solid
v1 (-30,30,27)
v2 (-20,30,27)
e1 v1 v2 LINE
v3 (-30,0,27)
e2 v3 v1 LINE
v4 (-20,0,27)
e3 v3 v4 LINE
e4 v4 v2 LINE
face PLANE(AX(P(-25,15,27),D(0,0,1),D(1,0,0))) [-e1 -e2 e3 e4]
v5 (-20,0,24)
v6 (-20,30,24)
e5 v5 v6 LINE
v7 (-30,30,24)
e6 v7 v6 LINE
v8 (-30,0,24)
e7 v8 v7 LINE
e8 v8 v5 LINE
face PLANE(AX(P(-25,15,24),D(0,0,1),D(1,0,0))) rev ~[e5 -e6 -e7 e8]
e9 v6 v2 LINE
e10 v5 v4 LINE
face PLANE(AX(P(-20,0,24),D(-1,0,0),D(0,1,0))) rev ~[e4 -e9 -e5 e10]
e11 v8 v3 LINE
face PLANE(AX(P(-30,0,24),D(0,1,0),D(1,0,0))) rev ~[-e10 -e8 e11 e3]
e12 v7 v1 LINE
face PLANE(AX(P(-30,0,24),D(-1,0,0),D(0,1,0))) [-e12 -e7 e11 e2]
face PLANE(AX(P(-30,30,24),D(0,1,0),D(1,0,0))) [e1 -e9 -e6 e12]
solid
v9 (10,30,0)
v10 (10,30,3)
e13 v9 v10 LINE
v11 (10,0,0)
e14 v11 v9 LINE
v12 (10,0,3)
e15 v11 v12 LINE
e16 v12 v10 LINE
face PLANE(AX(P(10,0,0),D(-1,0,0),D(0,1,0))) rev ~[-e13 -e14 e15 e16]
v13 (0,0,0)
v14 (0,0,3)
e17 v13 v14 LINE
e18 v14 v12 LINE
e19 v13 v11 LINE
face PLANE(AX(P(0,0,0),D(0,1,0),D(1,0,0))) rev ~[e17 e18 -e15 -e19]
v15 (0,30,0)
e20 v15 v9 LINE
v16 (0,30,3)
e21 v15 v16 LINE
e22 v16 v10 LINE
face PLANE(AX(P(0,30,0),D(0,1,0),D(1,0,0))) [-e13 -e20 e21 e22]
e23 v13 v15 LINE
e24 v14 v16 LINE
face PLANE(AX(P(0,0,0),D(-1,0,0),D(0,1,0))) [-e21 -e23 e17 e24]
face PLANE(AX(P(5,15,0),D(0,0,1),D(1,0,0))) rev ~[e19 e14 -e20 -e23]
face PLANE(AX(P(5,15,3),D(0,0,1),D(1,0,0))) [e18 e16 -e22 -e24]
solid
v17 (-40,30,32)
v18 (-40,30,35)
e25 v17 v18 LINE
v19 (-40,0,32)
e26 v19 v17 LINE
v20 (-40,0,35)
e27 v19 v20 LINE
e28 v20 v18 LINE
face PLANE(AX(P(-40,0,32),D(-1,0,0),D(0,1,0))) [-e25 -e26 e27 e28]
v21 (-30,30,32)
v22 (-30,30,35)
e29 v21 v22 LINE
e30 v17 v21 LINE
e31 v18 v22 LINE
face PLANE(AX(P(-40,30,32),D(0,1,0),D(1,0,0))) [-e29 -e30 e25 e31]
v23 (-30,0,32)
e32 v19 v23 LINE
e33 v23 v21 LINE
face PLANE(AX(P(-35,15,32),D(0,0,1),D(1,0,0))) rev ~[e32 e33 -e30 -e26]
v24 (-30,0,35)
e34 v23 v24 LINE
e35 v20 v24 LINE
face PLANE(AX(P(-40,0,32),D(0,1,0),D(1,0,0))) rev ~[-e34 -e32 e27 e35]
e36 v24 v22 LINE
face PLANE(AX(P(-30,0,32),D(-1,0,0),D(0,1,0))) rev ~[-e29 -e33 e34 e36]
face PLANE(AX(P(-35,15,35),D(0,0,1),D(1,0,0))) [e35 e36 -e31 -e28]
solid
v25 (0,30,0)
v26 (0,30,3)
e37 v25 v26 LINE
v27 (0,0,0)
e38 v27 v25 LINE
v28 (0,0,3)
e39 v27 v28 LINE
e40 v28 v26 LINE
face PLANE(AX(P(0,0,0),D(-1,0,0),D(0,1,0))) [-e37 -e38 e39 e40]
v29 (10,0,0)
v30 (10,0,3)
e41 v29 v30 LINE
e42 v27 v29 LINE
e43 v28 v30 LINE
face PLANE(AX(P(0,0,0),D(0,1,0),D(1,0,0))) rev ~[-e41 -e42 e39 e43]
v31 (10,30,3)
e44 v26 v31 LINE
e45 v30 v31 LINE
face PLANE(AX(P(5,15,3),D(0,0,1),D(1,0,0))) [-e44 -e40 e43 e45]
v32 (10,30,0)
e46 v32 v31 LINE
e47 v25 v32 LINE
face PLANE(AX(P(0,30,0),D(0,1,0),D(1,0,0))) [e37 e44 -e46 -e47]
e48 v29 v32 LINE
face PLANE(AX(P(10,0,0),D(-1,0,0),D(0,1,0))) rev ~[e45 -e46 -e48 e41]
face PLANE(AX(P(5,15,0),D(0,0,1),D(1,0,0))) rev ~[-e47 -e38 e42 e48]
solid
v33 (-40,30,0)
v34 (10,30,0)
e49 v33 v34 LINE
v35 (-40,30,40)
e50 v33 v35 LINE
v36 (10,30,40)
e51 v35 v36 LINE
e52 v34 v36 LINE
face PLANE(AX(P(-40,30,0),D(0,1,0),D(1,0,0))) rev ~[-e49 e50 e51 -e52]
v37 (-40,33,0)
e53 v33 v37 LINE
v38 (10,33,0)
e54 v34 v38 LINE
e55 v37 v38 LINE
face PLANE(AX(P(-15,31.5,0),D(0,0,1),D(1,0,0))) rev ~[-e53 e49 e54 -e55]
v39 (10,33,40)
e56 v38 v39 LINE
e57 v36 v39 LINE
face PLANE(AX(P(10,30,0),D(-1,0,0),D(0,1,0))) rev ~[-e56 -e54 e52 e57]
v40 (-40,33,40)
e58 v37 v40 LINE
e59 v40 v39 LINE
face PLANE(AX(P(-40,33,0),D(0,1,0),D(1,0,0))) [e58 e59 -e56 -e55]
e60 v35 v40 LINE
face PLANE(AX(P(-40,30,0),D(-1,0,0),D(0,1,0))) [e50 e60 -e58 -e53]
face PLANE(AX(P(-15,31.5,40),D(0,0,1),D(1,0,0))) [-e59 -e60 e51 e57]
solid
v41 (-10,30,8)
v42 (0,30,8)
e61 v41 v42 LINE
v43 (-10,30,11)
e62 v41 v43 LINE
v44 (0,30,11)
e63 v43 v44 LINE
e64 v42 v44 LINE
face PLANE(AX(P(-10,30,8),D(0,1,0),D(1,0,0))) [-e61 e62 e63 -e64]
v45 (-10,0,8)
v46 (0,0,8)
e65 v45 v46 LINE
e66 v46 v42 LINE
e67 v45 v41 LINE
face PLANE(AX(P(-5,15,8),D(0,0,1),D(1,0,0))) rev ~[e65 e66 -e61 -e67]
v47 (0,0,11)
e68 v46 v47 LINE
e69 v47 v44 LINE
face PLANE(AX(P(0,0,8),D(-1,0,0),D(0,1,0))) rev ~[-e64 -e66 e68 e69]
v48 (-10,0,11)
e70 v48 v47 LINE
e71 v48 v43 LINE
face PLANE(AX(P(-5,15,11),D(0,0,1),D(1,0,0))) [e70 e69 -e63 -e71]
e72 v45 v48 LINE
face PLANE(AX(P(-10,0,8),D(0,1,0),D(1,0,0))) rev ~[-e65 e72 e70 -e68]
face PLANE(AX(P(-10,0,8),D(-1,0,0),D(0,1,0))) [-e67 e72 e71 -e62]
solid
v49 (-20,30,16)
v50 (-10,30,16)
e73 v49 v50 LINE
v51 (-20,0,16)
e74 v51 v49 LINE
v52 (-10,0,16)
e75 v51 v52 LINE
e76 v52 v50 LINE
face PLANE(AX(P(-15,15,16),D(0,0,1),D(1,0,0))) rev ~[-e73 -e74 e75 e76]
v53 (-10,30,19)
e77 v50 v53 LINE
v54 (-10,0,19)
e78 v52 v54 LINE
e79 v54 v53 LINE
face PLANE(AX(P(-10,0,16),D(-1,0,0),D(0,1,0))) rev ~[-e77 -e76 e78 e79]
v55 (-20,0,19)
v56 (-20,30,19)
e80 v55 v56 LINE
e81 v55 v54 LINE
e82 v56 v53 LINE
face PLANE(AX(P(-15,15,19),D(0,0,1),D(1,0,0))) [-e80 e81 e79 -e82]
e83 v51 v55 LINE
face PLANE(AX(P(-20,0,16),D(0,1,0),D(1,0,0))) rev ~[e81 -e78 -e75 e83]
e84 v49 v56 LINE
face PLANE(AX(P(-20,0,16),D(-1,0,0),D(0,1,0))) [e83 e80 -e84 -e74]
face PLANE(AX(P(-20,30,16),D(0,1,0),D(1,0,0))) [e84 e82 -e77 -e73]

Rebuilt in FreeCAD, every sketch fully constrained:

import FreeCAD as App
import Part
import Sketcher

doc = App.newDocument("Part")
body = doc.addObject("PartDesign::Body", "Body")

# Sketch on XY plane
sketch1 = body.newObject("Sketcher::SketchObject", "Sketch")
sketch1.AttachmentSupport = (doc.getObject("XY_Plane"), [""])
sketch1.MapMode = "FlatFace"
sketch1.AttachmentOffset = App.Placement(App.Vector(0, 0, 24), App.Rotation())
sketch1.addGeometry(Part.LineSegment(App.Vector(-30, 30, 0), App.Vector(-30, 0, 0)), False)
sketch1.addGeometry(Part.LineSegment(App.Vector(-30, 0, 0), App.Vector(-20, 0, 0)), False)
sketch1.addGeometry(Part.LineSegment(App.Vector(-20, 0, 0), App.Vector(-20, 30, 0)), False)
sketch1.addGeometry(Part.LineSegment(App.Vector(-20, 30, 0), App.Vector(-30, 30, 0)), False)
sketch1.addConstraint(Sketcher.Constraint("Coincident", 0, 2, 1, 1))
sketch1.addConstraint(Sketcher.Constraint("Coincident", 1, 2, 2, 1))
sketch1.addConstraint(Sketcher.Constraint("Coincident", 2, 2, 3, 1))
sketch1.addConstraint(Sketcher.Constraint("Coincident", 3, 2, 0, 1))
sketch1.addConstraint(Sketcher.Constraint("Vertical", 0))
sketch1.addConstraint(Sketcher.Constraint("Horizontal", 1))
sketch1.addConstraint(Sketcher.Constraint("Vertical", 2))
sketch1.addConstraint(Sketcher.Constraint("Horizontal", 3))
sketch1.addConstraint(Sketcher.Constraint("PointOnObject", 0, 2, -1))
sketch1.addConstraint(Sketcher.Constraint("DistanceX", 1, 1, 1, 2, 10.0))
sketch1.addConstraint(Sketcher.Constraint("DistanceY", 0, 2, 0, 1, 30.0))
sketch1.addConstraint(Sketcher.Constraint("DistanceX", 0, 2, -1, 1, 30.0))
pad1 = body.newObject("PartDesign::Pad", "Pad")
pad1.Profile = sketch1
pad1.Length = 3
body2 = doc.addObject("PartDesign::Body", "Body001")

# Sketch on XY plane
sketch2 = body2.newObject("Sketcher::SketchObject", "Sketch001")
sketch2.AttachmentSupport = (doc.getObject("XY_Plane001"), [""])
sketch2.MapMode = "FlatFace"
sketch2.AttachmentOffset = App.Placement(App.Vector(0, 0, 16), App.Rotation())
sketch2.addGeometry(Part.LineSegment(App.Vector(-20, 30, 0), App.Vector(-20, 0, 0)), False)
sketch2.addGeometry(Part.LineSegment(App.Vector(-20, 0, 0), App.Vector(-10, 0, 0)), False)
sketch2.addGeometry(Part.LineSegment(App.Vector(-10, 0, 0), App.Vector(-10, 30, 0)), False)
sketch2.addGeometry(Part.LineSegment(App.Vector(-10, 30, 0), App.Vector(-20, 30, 0)), False)
sketch2.addConstraint(Sketcher.Constraint("Coincident", 0, 2, 1, 1))
sketch2.addConstraint(Sketcher.Constraint("Coincident", 1, 2, 2, 1))
sketch2.addConstraint(Sketcher.Constraint("Coincident", 2, 2, 3, 1))
sketch2.addConstraint(Sketcher.Constraint("Coincident", 3, 2, 0, 1))
sketch2.addConstraint(Sketcher.Constraint("Vertical", 0))
sketch2.addConstraint(Sketcher.Constraint("Horizontal", 1))
sketch2.addConstraint(Sketcher.Constraint("Vertical", 2))
sketch2.addConstraint(Sketcher.Constraint("Horizontal", 3))
sketch2.addConstraint(Sketcher.Constraint("PointOnObject", 0, 2, -1))
sketch2.addConstraint(Sketcher.Constraint("DistanceX", 1, 1, 1, 2, 10.0))
sketch2.addConstraint(Sketcher.Constraint("DistanceY", 0, 2, 0, 1, 30.0))
sketch2.addConstraint(Sketcher.Constraint("DistanceX", 0, 2, -1, 1, 20.0))
pad2 = body2.newObject("PartDesign::Pad", "Pad001")
pad2.Profile = sketch2
pad2.Length = 3
body3 = doc.addObject("PartDesign::Body", "Body002")

# Sketch on XY plane
sketch3 = body3.newObject("Sketcher::SketchObject", "Sketch002")
sketch3.AttachmentSupport = (doc.getObject("XY_Plane002"), [""])
sketch3.MapMode = "FlatFace"
sketch3.AttachmentOffset = App.Placement(App.Vector(0, 0, 8), App.Rotation())
sketch3.addGeometry(Part.LineSegment(App.Vector(-10, 30, 0), App.Vector(-10, 0, 0)), False)
sketch3.addGeometry(Part.LineSegment(App.Vector(-10, 0, 0), App.Vector(0, 0, 0)), False)
sketch3.addGeometry(Part.LineSegment(App.Vector(0, 0, 0), App.Vector(0, 30, 0)), False)
sketch3.addGeometry(Part.LineSegment(App.Vector(0, 30, 0), App.Vector(-10, 30, 0)), False)
sketch3.addConstraint(Sketcher.Constraint("Coincident", 0, 2, 1, 1))
sketch3.addConstraint(Sketcher.Constraint("Coincident", 1, 2, 2, 1))
sketch3.addConstraint(Sketcher.Constraint("Coincident", 2, 2, 3, 1))
sketch3.addConstraint(Sketcher.Constraint("Coincident", 3, 2, 0, 1))
sketch3.addConstraint(Sketcher.Constraint("Vertical", 0))
sketch3.addConstraint(Sketcher.Constraint("Horizontal", 1))
sketch3.addConstraint(Sketcher.Constraint("Vertical", 2))
sketch3.addConstraint(Sketcher.Constraint("Horizontal", 3))
sketch3.addConstraint(Sketcher.Constraint("Coincident", 1, 2, -1, 1))
sketch3.addConstraint(Sketcher.Constraint("DistanceX", 1, 1, 1, 2, 10.0))
sketch3.addConstraint(Sketcher.Constraint("DistanceY", 0, 2, 0, 1, 30.0))
pad3 = body3.newObject("PartDesign::Pad", "Pad002")
pad3.Profile = sketch3
pad3.Length = 3
body4 = doc.addObject("PartDesign::Body", "Body003")

# Sketch on XY plane
sketch4 = body4.newObject("Sketcher::SketchObject", "Sketch003")
sketch4.AttachmentSupport = (doc.getObject("XY_Plane003"), [""])
sketch4.MapMode = "FlatFace"
sketch4.addGeometry(Part.LineSegment(App.Vector(0, 30, 0), App.Vector(0, 0, 0)), False)
sketch4.addGeometry(Part.LineSegment(App.Vector(0, 0, 0), App.Vector(10, 0, 0)), False)
sketch4.addGeometry(Part.LineSegment(App.Vector(10, 0, 0), App.Vector(10, 30, 0)), False)
sketch4.addGeometry(Part.LineSegment(App.Vector(10, 30, 0), App.Vector(0, 30, 0)), False)
sketch4.addConstraint(Sketcher.Constraint("Coincident", 0, 2, 1, 1))
sketch4.addConstraint(Sketcher.Constraint("Coincident", 1, 2, 2, 1))
sketch4.addConstraint(Sketcher.Constraint("Coincident", 2, 2, 3, 1))
sketch4.addConstraint(Sketcher.Constraint("Coincident", 3, 2, 0, 1))
sketch4.addConstraint(Sketcher.Constraint("Vertical", 0))
sketch4.addConstraint(Sketcher.Constraint("Horizontal", 1))
sketch4.addConstraint(Sketcher.Constraint("Vertical", 2))
sketch4.addConstraint(Sketcher.Constraint("Horizontal", 3))
sketch4.addConstraint(Sketcher.Constraint("Coincident", 0, 2, -1, 1))
sketch4.addConstraint(Sketcher.Constraint("DistanceX", 1, 1, 1, 2, 10.0))
sketch4.addConstraint(Sketcher.Constraint("DistanceY", 0, 2, 0, 1, 30.0))
pad4 = body4.newObject("PartDesign::Pad", "Pad003")
pad4.Profile = sketch4
pad4.Length = 3
body5 = doc.addObject("PartDesign::Body", "Body004")

# Sketch on XY plane
sketch5 = body5.newObject("Sketcher::SketchObject", "Sketch004")
sketch5.AttachmentSupport = (doc.getObject("XY_Plane004"), [""])
sketch5.MapMode = "FlatFace"
sketch5.addGeometry(Part.LineSegment(App.Vector(0, 30, 0), App.Vector(0, 0, 0)), False)
sketch5.addGeometry(Part.LineSegment(App.Vector(0, 0, 0), App.Vector(10, 0, 0)), False)
sketch5.addGeometry(Part.LineSegment(App.Vector(10, 0, 0), App.Vector(10, 30, 0)), False)
sketch5.addGeometry(Part.LineSegment(App.Vector(10, 30, 0), App.Vector(0, 30, 0)), False)
sketch5.addConstraint(Sketcher.Constraint("Coincident", 0, 2, 1, 1))
sketch5.addConstraint(Sketcher.Constraint("Coincident", 1, 2, 2, 1))
sketch5.addConstraint(Sketcher.Constraint("Coincident", 2, 2, 3, 1))
sketch5.addConstraint(Sketcher.Constraint("Coincident", 3, 2, 0, 1))
sketch5.addConstraint(Sketcher.Constraint("Vertical", 0))
sketch5.addConstraint(Sketcher.Constraint("Horizontal", 1))
sketch5.addConstraint(Sketcher.Constraint("Vertical", 2))
sketch5.addConstraint(Sketcher.Constraint("Horizontal", 3))
sketch5.addConstraint(Sketcher.Constraint("Coincident", 0, 2, -1, 1))
sketch5.addConstraint(Sketcher.Constraint("DistanceX", 1, 1, 1, 2, 10.0))
sketch5.addConstraint(Sketcher.Constraint("DistanceY", 0, 2, 0, 1, 30.0))
pad5 = body5.newObject("PartDesign::Pad", "Pad004")
pad5.Profile = sketch5
pad5.Length = 3
body6 = doc.addObject("PartDesign::Body", "Body005")

# Sketch on XY plane
sketch6 = body6.newObject("Sketcher::SketchObject", "Sketch005")
sketch6.AttachmentSupport = (doc.getObject("XY_Plane005"), [""])
sketch6.MapMode = "FlatFace"
sketch6.addGeometry(Part.LineSegment(App.Vector(-40, 33, 0), App.Vector(-40, 30, 0)), False)
sketch6.addGeometry(Part.LineSegment(App.Vector(-40, 30, 0), App.Vector(10, 30, 0)), False)
sketch6.addGeometry(Part.LineSegment(App.Vector(10, 30, 0), App.Vector(10, 33, 0)), False)
sketch6.addGeometry(Part.LineSegment(App.Vector(10, 33, 0), App.Vector(-40, 33, 0)), False)
sketch6.addConstraint(Sketcher.Constraint("Coincident", 0, 2, 1, 1))
sketch6.addConstraint(Sketcher.Constraint("Coincident", 1, 2, 2, 1))
sketch6.addConstraint(Sketcher.Constraint("Coincident", 2, 2, 3, 1))
sketch6.addConstraint(Sketcher.Constraint("Coincident", 3, 2, 0, 1))
sketch6.addConstraint(Sketcher.Constraint("Vertical", 0))
sketch6.addConstraint(Sketcher.Constraint("Horizontal", 1))
sketch6.addConstraint(Sketcher.Constraint("Vertical", 2))
sketch6.addConstraint(Sketcher.Constraint("Horizontal", 3))
sketch6.addConstraint(Sketcher.Constraint("DistanceX", 1, 1, 1, 2, 50.0))
sketch6.addConstraint(Sketcher.Constraint("DistanceY", 0, 2, 0, 1, 3.0))
sketch6.addConstraint(Sketcher.Constraint("DistanceX", 0, 2, -1, 1, 40.0))
sketch6.addConstraint(Sketcher.Constraint("DistanceY", -1, 1, 0, 2, 30.0))
pad6 = body6.newObject("PartDesign::Pad", "Pad005")
pad6.Profile = sketch6
pad6.Length = 40
body7 = doc.addObject("PartDesign::Body", "Body006")

# Sketch on XY plane
sketch7 = body7.newObject("Sketcher::SketchObject", "Sketch006")
sketch7.AttachmentSupport = (doc.getObject("XY_Plane006"), [""])
sketch7.MapMode = "FlatFace"
sketch7.AttachmentOffset = App.Placement(App.Vector(0, 0, 32), App.Rotation())
sketch7.addGeometry(Part.LineSegment(App.Vector(-40, 30, 0), App.Vector(-40, 0, 0)), False)
sketch7.addGeometry(Part.LineSegment(App.Vector(-40, 0, 0), App.Vector(-30, 0, 0)), False)
sketch7.addGeometry(Part.LineSegment(App.Vector(-30, 0, 0), App.Vector(-30, 30, 0)), False)
sketch7.addGeometry(Part.LineSegment(App.Vector(-30, 30, 0), App.Vector(-40, 30, 0)), False)
sketch7.addConstraint(Sketcher.Constraint("Coincident", 0, 2, 1, 1))
sketch7.addConstraint(Sketcher.Constraint("Coincident", 1, 2, 2, 1))
sketch7.addConstraint(Sketcher.Constraint("Coincident", 2, 2, 3, 1))
sketch7.addConstraint(Sketcher.Constraint("Coincident", 3, 2, 0, 1))
sketch7.addConstraint(Sketcher.Constraint("Vertical", 0))
sketch7.addConstraint(Sketcher.Constraint("Horizontal", 1))
sketch7.addConstraint(Sketcher.Constraint("Vertical", 2))
sketch7.addConstraint(Sketcher.Constraint("Horizontal", 3))
sketch7.addConstraint(Sketcher.Constraint("PointOnObject", 0, 2, -1))
sketch7.addConstraint(Sketcher.Constraint("DistanceX", 1, 1, 1, 2, 10.0))
sketch7.addConstraint(Sketcher.Constraint("DistanceY", 0, 2, 0, 1, 30.0))
sketch7.addConstraint(Sketcher.Constraint("DistanceX", 0, 2, -1, 1, 40.0))
pad7 = body7.newObject("PartDesign::Pad", "Pad006")
pad7.Profile = sketch7
pad7.Length = 3

doc.recompute()
